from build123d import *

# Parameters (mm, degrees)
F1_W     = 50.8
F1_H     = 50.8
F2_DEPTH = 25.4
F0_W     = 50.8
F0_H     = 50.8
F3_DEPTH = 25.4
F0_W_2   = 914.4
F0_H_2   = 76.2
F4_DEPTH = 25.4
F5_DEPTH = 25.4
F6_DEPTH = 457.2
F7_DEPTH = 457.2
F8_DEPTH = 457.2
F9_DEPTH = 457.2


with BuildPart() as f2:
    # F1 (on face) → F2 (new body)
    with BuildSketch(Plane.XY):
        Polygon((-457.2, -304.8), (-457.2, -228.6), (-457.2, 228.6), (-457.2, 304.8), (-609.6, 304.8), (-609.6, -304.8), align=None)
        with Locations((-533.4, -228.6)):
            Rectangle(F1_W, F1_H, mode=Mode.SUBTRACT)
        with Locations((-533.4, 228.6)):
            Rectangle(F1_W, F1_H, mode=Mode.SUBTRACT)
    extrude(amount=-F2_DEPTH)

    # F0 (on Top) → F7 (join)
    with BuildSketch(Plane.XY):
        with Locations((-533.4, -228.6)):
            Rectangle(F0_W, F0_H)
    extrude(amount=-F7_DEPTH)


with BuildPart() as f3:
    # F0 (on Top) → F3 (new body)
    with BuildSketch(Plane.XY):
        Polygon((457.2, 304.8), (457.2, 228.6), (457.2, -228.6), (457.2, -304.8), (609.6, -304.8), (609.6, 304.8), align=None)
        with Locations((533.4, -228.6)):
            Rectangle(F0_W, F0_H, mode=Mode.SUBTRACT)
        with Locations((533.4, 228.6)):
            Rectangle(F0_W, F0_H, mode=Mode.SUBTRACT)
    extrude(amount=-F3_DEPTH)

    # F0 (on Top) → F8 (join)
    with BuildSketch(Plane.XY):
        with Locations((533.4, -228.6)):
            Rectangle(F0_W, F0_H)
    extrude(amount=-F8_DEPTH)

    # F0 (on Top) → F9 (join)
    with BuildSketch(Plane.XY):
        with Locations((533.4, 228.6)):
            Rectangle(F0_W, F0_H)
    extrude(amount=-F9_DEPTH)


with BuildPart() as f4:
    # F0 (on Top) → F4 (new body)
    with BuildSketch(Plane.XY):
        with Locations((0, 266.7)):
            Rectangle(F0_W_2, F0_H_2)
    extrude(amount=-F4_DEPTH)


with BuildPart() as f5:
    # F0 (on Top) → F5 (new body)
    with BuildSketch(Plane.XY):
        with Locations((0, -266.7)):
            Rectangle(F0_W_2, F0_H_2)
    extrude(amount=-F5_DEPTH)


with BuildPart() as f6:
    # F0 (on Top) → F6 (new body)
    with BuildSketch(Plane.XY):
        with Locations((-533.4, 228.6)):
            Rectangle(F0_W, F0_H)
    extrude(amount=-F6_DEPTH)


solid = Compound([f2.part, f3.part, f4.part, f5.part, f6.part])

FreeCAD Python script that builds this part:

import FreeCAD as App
import Part
import Sketcher

V = App.Vector
Q = App.Units.Quantity

doc = App.newDocument("Part")
body = doc.addObject("PartDesign::Body", "Body")

sketch1 = body.newObject("Sketcher::SketchObject", "Sketch")
sketch1.AttachmentSupport = (doc.getObject("XY_Plane"), [""])
sketch1.MapMode = "FlatFace"
sketch1.addGeometry([
    Part.LineSegment(V(-457.2, -304.8, 0), V(-457.2, 304.8, 0)),
    Part.LineSegment(V(-457.2, 304.8, 0), V(-609.6, 304.8, 0)),
    Part.LineSegment(V(-609.6, 304.8, 0), V(-609.6, -304.8, 0)),
    Part.LineSegment(V(-609.6, -304.8, 0), V(-457.2, -304.8, 0)),
    Part.LineSegment(V(-508, -254, 0), V(-558.8, -254, 0)),
    Part.LineSegment(V(-558.8, -254, 0), V(-558.8, -203.2, 0)),
    Part.LineSegment(V(-558.8, -203.2, 0), V(-508, -203.2, 0)),
    Part.LineSegment(V(-508, -203.2, 0), V(-508, -254, 0)),
    Part.LineSegment(V(-508, 203.2, 0), V(-558.8, 203.2, 0)),
    Part.LineSegment(V(-558.8, 203.2, 0), V(-558.8, 254, 0)),
    Part.LineSegment(V(-558.8, 254, 0), V(-508, 254, 0)),
    Part.LineSegment(V(-508, 254, 0), V(-508, 203.2, 0)),
], False)
sketch1.addConstraint([
    Sketcher.Constraint("Coincident", 0, 2, 1, 1),
    Sketcher.Constraint("Coincident", 1, 2, 2, 1),
    Sketcher.Constraint("Coincident", 2, 2, 3, 1),
    Sketcher.Constraint("Coincident", 3, 2, 0, 1),
    Sketcher.Constraint("Coincident", 4, 2, 5, 1),
    Sketcher.Constraint("Coincident", 5, 2, 6, 1),
    Sketcher.Constraint("Coincident", 6, 2, 7, 1),
    Sketcher.Constraint("Coincident", 7, 2, 4, 1),
    Sketcher.Constraint("Coincident", 8, 2, 9, 1),
    Sketcher.Constraint("Coincident", 9, 2, 10, 1),
    Sketcher.Constraint("Coincident", 10, 2, 11, 1),
    Sketcher.Constraint("Coincident", 11, 2, 8, 1),
    Sketcher.Constraint("Vertical", 0),
    Sketcher.Constraint("Horizontal", 1),
    Sketcher.Constraint("Vertical", 2),
    Sketcher.Constraint("Horizontal", 3),
    Sketcher.Constraint("Horizontal", 4),
    Sketcher.Constraint("Vertical", 5),
    Sketcher.Constraint("Horizontal", 6),
    Sketcher.Constraint("Vertical", 7),
    Sketcher.Constraint("Horizontal", 8),
    Sketcher.Constraint("Vertical", 9),
    Sketcher.Constraint("Horizontal", 10),
    Sketcher.Constraint("Vertical", 11),
    Sketcher.Constraint("Symmetric", 5, 2, 8, 2, -1),
    Sketcher.Constraint("Symmetric", 7, 2, 10, 2, -1),
    Sketcher.Constraint("Equal", 10, 5),
    Sketcher.Constraint("DistanceX", 1, 2, 1, 1, Q("6 in")),
    Sketcher.Constraint("DistanceX", 4, 2, 4, 1, Q("2 in")),
    Sketcher.Constraint("DistanceY", 0, 1, 0, 2, Q("24 in")),
    Sketcher.Constraint("DistanceX", 0, 2, -1, 1, Q("18 in")),
    Sketcher.Constraint("DistanceY", -1, 1, 0, 2, Q("12 in")),
    Sketcher.Constraint("DistanceX", 4, 2, -1, 1, Q("22 in")),
    Sketcher.Constraint("DistanceY", 4, 2, -1, 1, Q("10 in")),
])
pad1 = body.newObject("PartDesign::Pad", "Pad")
pad1.Profile = sketch1
pad1.Length = Q("1 in")
pad1.Reversed = True

sketch2 = body.newObject("Sketcher::SketchObject", "Sketch001")
sketch2.AttachmentSupport = (doc.getObject("XY_Plane"), [""])
sketch2.MapMode = "FlatFace"
sketch2.addGeometry([
    Part.LineSegment(V(-558.8, -203.2, 0), V(-558.8, -254, 0)),
    Part.LineSegment(V(-558.8, -254, 0), V(-508, -254, 0)),
    Part.LineSegment(V(-508, -254, 0), V(-508, -203.2, 0)),
    Part.LineSegment(V(-508, -203.2, 0), V(-558.8, -203.2, 0)),
], False)
sketch2.addConstraint([
    Sketcher.Constraint("Coincident", 0, 2, 1, 1),
    Sketcher.Constraint("Coincident", 1, 2, 2, 1),
    Sketcher.Constraint("Coincident", 2, 2, 3, 1),
    Sketcher.Constraint("Coincident", 3, 2, 0, 1),
    Sketcher.Constraint("Vertical", 0),
    Sketcher.Constraint("Horizontal", 1),
    Sketcher.Constraint("Vertical", 2),
    Sketcher.Constraint("Horizontal", 3),
    Sketcher.Constraint("Equal", 3, 0),
    Sketcher.Constraint("DistanceX", 1, 1, 1, 2, Q("2 in")),
    Sketcher.Constraint("DistanceX", 0, 2, -1, 1, Q("22 in")),
    Sketcher.Constraint("DistanceY", 0, 2, -1, 1, Q("10 in")),
])
pad2 = body.newObject("PartDesign::Pad", "Pad001")
pad2.Profile = sketch2
pad2.Length = Q("18 in")
pad2.Reversed = True
body2 = doc.addObject("PartDesign::Body", "Body001")

sketch3 = body2.newObject("Sketcher::SketchObject", "Sketch002")
sketch3.AttachmentSupport = (doc.getObject("XY_Plane001"), [""])
sketch3.MapMode = "FlatFace"
sketch3.addGeometry([
    Part.LineSegment(V(457.2, 304.8, 0), V(457.2, -304.8, 0)),
    Part.LineSegment(V(457.2, -304.8, 0), V(609.6, -304.8, 0)),
    Part.LineSegment(V(609.6, -304.8, 0), V(609.6, 304.8, 0)),
    Part.LineSegment(V(609.6, 304.8, 0), V(457.2, 304.8, 0)),
    Part.LineSegment(V(558.8, -254, 0), V(508, -254, 0)),
    Part.LineSegment(V(508, -254, 0), V(508, -203.2, 0)),
    Part.LineSegment(V(508, -203.2, 0), V(558.8, -203.2, 0)),
    Part.LineSegment(V(558.8, -203.2, 0), V(558.8, -254, 0)),
    Part.LineSegment(V(558.8, 203.2, 0), V(508, 203.2, 0)),
    Part.LineSegment(V(508, 203.2, 0), V(508, 254, 0)),
    Part.LineSegment(V(508, 254, 0), V(558.8, 254, 0)),
    Part.LineSegment(V(558.8, 254, 0), V(558.8, 203.2, 0)),
], False)
sketch3.addConstraint([
    Sketcher.Constraint("Coincident", 0, 2, 1, 1),
    Sketcher.Constraint("Coincident", 1, 2, 2, 1),
    Sketcher.Constraint("Coincident", 2, 2, 3, 1),
    Sketcher.Constraint("Coincident", 3, 2, 0, 1),
    Sketcher.Constraint("Coincident", 4, 2, 5, 1),
    Sketcher.Constraint("Coincident", 5, 2, 6, 1),
    Sketcher.Constraint("Coincident", 6, 2, 7, 1),
    Sketcher.Constraint("Coincident", 7, 2, 4, 1),
    Sketcher.Constraint("Coincident", 8, 2, 9, 1),
    Sketcher.Constraint("Coincident", 9, 2, 10, 1),
    Sketcher.Constraint("Coincident", 10, 2, 11, 1),
    Sketcher.Constraint("Coincident", 11, 2, 8, 1),
    Sketcher.Constraint("Vertical", 0),
    Sketcher.Constraint("Horizontal", 1),
    Sketcher.Constraint("Vertical", 2),
    Sketcher.Constraint("Horizontal", 3),
    Sketcher.Constraint("Horizontal", 4),
    Sketcher.Constraint("Vertical", 5),
    Sketcher.Constraint("Horizontal", 6),
    Sketcher.Constraint("Vertical", 7),
    Sketcher.Constraint("Horizontal", 8),
    Sketcher.Constraint("Vertical", 9),
    Sketcher.Constraint("Horizontal", 10),
    Sketcher.Constraint("Vertical", 11),
    Sketcher.Constraint("Symmetric", 5, 2, 8, 2, -1),
    Sketcher.Constraint("Symmetric", 7, 2, 10, 2, -1),
    Sketcher.Constraint("Equal", 10, 5),
    Sketcher.Constraint("DistanceX", 1, 1, 1, 2, Q("6 in")),
    Sketcher.Constraint("DistanceX", 4, 2, 4, 1, Q("2 in")),
    Sketcher.Constraint("DistanceY", 0, 2, 0, 1, Q("24 in")),
    Sketcher.Constraint("DistanceX", -1, 1, 0, 2, Q("18 in")),
    Sketcher.Constraint("DistanceY", 0, 2, -1, 1, Q("12 in")),
    Sketcher.Constraint("DistanceX", -1, 1, 4, 2, Q("20 in")),
    Sketcher.Constraint("DistanceY", 4, 2, -1, 1, Q("10 in")),
])
pad3 = body2.newObject("PartDesign::Pad", "Pad002")
pad3.Profile = sketch3
pad3.Length = Q("1 in")
pad3.Reversed = True

sketch4 = body2.newObject("Sketcher::SketchObject", "Sketch003")
sketch4.AttachmentSupport = (doc.getObject("XY_Plane001"), [""])
sketch4.MapMode = "FlatFace"
sketch4.addGeometry([
    Part.LineSegment(V(508, -203.2, 0), V(508, -254, 0)),
    Part.LineSegment(V(508, -254, 0), V(558.8, -254, 0)),
    Part.LineSegment(V(558.8, -254, 0), V(558.8, -203.2, 0)),
    Part.LineSegment(V(558.8, -203.2, 0), V(508, -203.2, 0)),
], False)
sketch4.addConstraint([
    Sketcher.Constraint("Coincident", 0, 2, 1, 1),
    Sketcher.Constraint("Coincident", 1, 2, 2, 1),
    Sketcher.Constraint("Coincident", 2, 2, 3, 1),
    Sketcher.Constraint("Coincident", 3, 2, 0, 1),
    Sketcher.Constraint("Vertical", 0),
    Sketcher.Constraint("Horizontal", 1),
    Sketcher.Constraint("Vertical", 2),
    Sketcher.Constraint("Horizontal", 3),
    Sketcher.Constraint("Equal", 3, 0),
    Sketcher.Constraint("DistanceX", 1, 1, 1, 2, Q("2 in")),
    Sketcher.Constraint("DistanceX", -1, 1, 0, 2, Q("20 in")),
    Sketcher.Constraint("DistanceY", 0, 2, -1, 1, Q("10 in")),
])
pad4 = body2.newObject("PartDesign::Pad", "Pad003")
pad4.Profile = sketch4
pad4.Length = Q("18 in")
pad4.Reversed = True

sketch5 = body2.newObject("Sketcher::SketchObject", "Sketch004")
sketch5.AttachmentSupport = (doc.getObject("XY_Plane001"), [""])
sketch5.MapMode = "FlatFace"
sketch5.addGeometry([
    Part.LineSegment(V(508, 254, 0), V(508, 203.2, 0)),
    Part.LineSegment(V(508, 203.2, 0), V(558.8, 203.2, 0)),
    Part.LineSegment(V(558.8, 203.2, 0), V(558.8, 254, 0)),
    Part.LineSegment(V(558.8, 254, 0), V(508, 254, 0)),
], False)
sketch5.addConstraint([
    Sketcher.Constraint("Coincident", 0, 2, 1, 1),
    Sketcher.Constraint("Coincident", 1, 2, 2, 1),
    Sketcher.Constraint("Coincident", 2, 2, 3, 1),
    Sketcher.Constraint("Coincident", 3, 2, 0, 1),
    Sketcher.Constraint("Vertical", 0),
    Sketcher.Constraint("Horizontal", 1),
    Sketcher.Constraint("Vertical", 2),
    Sketcher.Constraint("Horizontal", 3),
    Sketcher.Constraint("Equal", 3, 0),
    Sketcher.Constraint("DistanceX", 1, 1, 1, 2, Q("2 in")),
    Sketcher.Constraint("DistanceX", -1, 1, 0, 2, Q("20 in")),
    Sketcher.Constraint("DistanceY", -1, 1, 0, 2, Q("8 in")),
])
pad5 = body2.newObject("PartDesign::Pad", "Pad004")
pad5.Profile = sketch5
pad5.Length = Q("18 in")
pad5.Reversed = True
body3 = doc.addObject("PartDesign::Body", "Body002")

sketch6 = body3.newObject("Sketcher::SketchObject", "Sketch005")
sketch6.AttachmentSupport = (doc.getObject("XY_Plane002"), [""])
sketch6.MapMode = "FlatFace"
sketch6.addGeometry([
    Part.LineSegment(V(-457.2, 304.8, 0), V(-457.2, 228.6, 0)),
    Part.LineSegment(V(-457.2, 228.6, 0), V(457.2, 228.6, 0)),
    Part.LineSegment(V(457.2, 228.6, 0), V(457.2, 304.8, 0)),
    Part.LineSegment(V(457.2, 304.8, 0), V(-457.2, 304.8, 0)),
], False)
sketch6.addConstraint([
    Sketcher.Constraint("Coincident", 0, 2, 1, 1),
    Sketcher.Constraint("Coincident", 1, 2, 2, 1),
    Sketcher.Constraint("Coincident", 2, 2, 3, 1),
    Sketcher.Constraint("Coincident", 3, 2, 0, 1),
    Sketcher.Constraint("Vertical", 0),
    Sketcher.Constraint("Horizontal", 1),
    Sketcher.Constraint("Vertical", 2),
    Sketcher.Constraint("Horizontal", 3),
    Sketcher.Constraint("DistanceX", 1, 1, 1, 2, Q("36 in")),
    Sketcher.Constraint("DistanceY", 0, 2, 0, 1, Q("3 in")),
    Sketcher.Constraint("DistanceX", 0, 2, -1, 1, Q("18 in")),
    Sketcher.Constraint("DistanceY", -1, 1, 0, 2, Q("9 in")),
])
pad6 = body3.newObject("PartDesign::Pad", "Pad005")
pad6.Profile = sketch6
pad6.Length = Q("1 in")
pad6.Reversed = True
body4 = doc.addObject("PartDesign::Body", "Body003")

sketch7 = body4.newObject("Sketcher::SketchObject", "Sketch006")
sketch7.AttachmentSupport = (doc.getObject("XY_Plane003"), [""])
sketch7.MapMode = "FlatFace"
sketch7.addGeometry([
    Part.LineSegment(V(-457.2, -228.6, 0), V(-457.2, -304.8, 0)),
    Part.LineSegment(V(-457.2, -304.8, 0), V(457.2, -304.8, 0)),
    Part.LineSegment(V(457.2, -304.8, 0), V(457.2, -228.6, 0)),
    Part.LineSegment(V(457.2, -228.6, 0), V(-457.2, -228.6, 0)),
], False)
sketch7.addConstraint([
    Sketcher.Constraint("Coincident", 0, 2, 1, 1),
    Sketcher.Constraint("Coincident", 1, 2, 2, 1),
    Sketcher.Constraint("Coincident", 2, 2, 3, 1),
    Sketcher.Constraint("Coincident", 3, 2, 0, 1),
    Sketcher.Constraint("Vertical", 0),
    Sketcher.Constraint("Horizontal", 1),
    Sketcher.Constraint("Vertical", 2),
    Sketcher.Constraint("Horizontal", 3),
    Sketcher.Constraint("DistanceX", 1, 1, 1, 2, Q("36 in")),
    Sketcher.Constraint("DistanceY", 0, 2, 0, 1, Q("3 in")),
    Sketcher.Constraint("DistanceX", 0, 2, -1, 1, Q("18 in")),
    Sketcher.Constraint("DistanceY", 0, 2, -1, 1, Q("12 in")),
])
pad7 = body4.newObject("PartDesign::Pad", "Pad006")
pad7.Profile = sketch7
pad7.Length = Q("1 in")
pad7.Reversed = True
body5 = doc.addObject("PartDesign::Body", "Body004")

sketch8 = body5.newObject("Sketcher::SketchObject", "Sketch007")
sketch8.AttachmentSupport = (doc.getObject("XY_Plane004"), [""])
sketch8.MapMode = "FlatFace"
sketch8.addGeometry([
    Part.LineSegment(V(-558.8, 254, 0), V(-558.8, 203.2, 0)),
    Part.LineSegment(V(-558.8, 203.2, 0), V(-508, 203.2, 0)),
    Part.LineSegment(V(-508, 203.2, 0), V(-508, 254, 0)),
    Part.LineSegment(V(-508, 254, 0), V(-558.8, 254, 0)),
], False)
sketch8.addConstraint([
    Sketcher.Constraint("Coincident", 0, 2, 1, 1),
    Sketcher.Constraint("Coincident", 1, 2, 2, 1),
    Sketcher.Constraint("Coincident", 2, 2, 3, 1),
    Sketcher.Constraint("Coincident", 3, 2, 0, 1),
    Sketcher.Constraint("Vertical", 0),
    Sketcher.Constraint("Horizontal", 1),
    Sketcher.Constraint("Vertical", 2),
    Sketcher.Constraint("Horizontal", 3),
    Sketcher.Constraint("Equal", 3, 0),
    Sketcher.Constraint("DistanceX", 1, 1, 1, 2, Q("2 in")),
    Sketcher.Constraint("DistanceX", 0, 2, -1, 1, Q("22 in")),
    Sketcher.Constraint("DistanceY", -1, 1, 0, 2, Q("8 in")),
])
pad8 = body5.newObject("PartDesign::Pad", "Pad007")
pad8.Profile = sketch8
pad8.Length = Q("18 in")
pad8.Reversed = True

doc.recompute()
